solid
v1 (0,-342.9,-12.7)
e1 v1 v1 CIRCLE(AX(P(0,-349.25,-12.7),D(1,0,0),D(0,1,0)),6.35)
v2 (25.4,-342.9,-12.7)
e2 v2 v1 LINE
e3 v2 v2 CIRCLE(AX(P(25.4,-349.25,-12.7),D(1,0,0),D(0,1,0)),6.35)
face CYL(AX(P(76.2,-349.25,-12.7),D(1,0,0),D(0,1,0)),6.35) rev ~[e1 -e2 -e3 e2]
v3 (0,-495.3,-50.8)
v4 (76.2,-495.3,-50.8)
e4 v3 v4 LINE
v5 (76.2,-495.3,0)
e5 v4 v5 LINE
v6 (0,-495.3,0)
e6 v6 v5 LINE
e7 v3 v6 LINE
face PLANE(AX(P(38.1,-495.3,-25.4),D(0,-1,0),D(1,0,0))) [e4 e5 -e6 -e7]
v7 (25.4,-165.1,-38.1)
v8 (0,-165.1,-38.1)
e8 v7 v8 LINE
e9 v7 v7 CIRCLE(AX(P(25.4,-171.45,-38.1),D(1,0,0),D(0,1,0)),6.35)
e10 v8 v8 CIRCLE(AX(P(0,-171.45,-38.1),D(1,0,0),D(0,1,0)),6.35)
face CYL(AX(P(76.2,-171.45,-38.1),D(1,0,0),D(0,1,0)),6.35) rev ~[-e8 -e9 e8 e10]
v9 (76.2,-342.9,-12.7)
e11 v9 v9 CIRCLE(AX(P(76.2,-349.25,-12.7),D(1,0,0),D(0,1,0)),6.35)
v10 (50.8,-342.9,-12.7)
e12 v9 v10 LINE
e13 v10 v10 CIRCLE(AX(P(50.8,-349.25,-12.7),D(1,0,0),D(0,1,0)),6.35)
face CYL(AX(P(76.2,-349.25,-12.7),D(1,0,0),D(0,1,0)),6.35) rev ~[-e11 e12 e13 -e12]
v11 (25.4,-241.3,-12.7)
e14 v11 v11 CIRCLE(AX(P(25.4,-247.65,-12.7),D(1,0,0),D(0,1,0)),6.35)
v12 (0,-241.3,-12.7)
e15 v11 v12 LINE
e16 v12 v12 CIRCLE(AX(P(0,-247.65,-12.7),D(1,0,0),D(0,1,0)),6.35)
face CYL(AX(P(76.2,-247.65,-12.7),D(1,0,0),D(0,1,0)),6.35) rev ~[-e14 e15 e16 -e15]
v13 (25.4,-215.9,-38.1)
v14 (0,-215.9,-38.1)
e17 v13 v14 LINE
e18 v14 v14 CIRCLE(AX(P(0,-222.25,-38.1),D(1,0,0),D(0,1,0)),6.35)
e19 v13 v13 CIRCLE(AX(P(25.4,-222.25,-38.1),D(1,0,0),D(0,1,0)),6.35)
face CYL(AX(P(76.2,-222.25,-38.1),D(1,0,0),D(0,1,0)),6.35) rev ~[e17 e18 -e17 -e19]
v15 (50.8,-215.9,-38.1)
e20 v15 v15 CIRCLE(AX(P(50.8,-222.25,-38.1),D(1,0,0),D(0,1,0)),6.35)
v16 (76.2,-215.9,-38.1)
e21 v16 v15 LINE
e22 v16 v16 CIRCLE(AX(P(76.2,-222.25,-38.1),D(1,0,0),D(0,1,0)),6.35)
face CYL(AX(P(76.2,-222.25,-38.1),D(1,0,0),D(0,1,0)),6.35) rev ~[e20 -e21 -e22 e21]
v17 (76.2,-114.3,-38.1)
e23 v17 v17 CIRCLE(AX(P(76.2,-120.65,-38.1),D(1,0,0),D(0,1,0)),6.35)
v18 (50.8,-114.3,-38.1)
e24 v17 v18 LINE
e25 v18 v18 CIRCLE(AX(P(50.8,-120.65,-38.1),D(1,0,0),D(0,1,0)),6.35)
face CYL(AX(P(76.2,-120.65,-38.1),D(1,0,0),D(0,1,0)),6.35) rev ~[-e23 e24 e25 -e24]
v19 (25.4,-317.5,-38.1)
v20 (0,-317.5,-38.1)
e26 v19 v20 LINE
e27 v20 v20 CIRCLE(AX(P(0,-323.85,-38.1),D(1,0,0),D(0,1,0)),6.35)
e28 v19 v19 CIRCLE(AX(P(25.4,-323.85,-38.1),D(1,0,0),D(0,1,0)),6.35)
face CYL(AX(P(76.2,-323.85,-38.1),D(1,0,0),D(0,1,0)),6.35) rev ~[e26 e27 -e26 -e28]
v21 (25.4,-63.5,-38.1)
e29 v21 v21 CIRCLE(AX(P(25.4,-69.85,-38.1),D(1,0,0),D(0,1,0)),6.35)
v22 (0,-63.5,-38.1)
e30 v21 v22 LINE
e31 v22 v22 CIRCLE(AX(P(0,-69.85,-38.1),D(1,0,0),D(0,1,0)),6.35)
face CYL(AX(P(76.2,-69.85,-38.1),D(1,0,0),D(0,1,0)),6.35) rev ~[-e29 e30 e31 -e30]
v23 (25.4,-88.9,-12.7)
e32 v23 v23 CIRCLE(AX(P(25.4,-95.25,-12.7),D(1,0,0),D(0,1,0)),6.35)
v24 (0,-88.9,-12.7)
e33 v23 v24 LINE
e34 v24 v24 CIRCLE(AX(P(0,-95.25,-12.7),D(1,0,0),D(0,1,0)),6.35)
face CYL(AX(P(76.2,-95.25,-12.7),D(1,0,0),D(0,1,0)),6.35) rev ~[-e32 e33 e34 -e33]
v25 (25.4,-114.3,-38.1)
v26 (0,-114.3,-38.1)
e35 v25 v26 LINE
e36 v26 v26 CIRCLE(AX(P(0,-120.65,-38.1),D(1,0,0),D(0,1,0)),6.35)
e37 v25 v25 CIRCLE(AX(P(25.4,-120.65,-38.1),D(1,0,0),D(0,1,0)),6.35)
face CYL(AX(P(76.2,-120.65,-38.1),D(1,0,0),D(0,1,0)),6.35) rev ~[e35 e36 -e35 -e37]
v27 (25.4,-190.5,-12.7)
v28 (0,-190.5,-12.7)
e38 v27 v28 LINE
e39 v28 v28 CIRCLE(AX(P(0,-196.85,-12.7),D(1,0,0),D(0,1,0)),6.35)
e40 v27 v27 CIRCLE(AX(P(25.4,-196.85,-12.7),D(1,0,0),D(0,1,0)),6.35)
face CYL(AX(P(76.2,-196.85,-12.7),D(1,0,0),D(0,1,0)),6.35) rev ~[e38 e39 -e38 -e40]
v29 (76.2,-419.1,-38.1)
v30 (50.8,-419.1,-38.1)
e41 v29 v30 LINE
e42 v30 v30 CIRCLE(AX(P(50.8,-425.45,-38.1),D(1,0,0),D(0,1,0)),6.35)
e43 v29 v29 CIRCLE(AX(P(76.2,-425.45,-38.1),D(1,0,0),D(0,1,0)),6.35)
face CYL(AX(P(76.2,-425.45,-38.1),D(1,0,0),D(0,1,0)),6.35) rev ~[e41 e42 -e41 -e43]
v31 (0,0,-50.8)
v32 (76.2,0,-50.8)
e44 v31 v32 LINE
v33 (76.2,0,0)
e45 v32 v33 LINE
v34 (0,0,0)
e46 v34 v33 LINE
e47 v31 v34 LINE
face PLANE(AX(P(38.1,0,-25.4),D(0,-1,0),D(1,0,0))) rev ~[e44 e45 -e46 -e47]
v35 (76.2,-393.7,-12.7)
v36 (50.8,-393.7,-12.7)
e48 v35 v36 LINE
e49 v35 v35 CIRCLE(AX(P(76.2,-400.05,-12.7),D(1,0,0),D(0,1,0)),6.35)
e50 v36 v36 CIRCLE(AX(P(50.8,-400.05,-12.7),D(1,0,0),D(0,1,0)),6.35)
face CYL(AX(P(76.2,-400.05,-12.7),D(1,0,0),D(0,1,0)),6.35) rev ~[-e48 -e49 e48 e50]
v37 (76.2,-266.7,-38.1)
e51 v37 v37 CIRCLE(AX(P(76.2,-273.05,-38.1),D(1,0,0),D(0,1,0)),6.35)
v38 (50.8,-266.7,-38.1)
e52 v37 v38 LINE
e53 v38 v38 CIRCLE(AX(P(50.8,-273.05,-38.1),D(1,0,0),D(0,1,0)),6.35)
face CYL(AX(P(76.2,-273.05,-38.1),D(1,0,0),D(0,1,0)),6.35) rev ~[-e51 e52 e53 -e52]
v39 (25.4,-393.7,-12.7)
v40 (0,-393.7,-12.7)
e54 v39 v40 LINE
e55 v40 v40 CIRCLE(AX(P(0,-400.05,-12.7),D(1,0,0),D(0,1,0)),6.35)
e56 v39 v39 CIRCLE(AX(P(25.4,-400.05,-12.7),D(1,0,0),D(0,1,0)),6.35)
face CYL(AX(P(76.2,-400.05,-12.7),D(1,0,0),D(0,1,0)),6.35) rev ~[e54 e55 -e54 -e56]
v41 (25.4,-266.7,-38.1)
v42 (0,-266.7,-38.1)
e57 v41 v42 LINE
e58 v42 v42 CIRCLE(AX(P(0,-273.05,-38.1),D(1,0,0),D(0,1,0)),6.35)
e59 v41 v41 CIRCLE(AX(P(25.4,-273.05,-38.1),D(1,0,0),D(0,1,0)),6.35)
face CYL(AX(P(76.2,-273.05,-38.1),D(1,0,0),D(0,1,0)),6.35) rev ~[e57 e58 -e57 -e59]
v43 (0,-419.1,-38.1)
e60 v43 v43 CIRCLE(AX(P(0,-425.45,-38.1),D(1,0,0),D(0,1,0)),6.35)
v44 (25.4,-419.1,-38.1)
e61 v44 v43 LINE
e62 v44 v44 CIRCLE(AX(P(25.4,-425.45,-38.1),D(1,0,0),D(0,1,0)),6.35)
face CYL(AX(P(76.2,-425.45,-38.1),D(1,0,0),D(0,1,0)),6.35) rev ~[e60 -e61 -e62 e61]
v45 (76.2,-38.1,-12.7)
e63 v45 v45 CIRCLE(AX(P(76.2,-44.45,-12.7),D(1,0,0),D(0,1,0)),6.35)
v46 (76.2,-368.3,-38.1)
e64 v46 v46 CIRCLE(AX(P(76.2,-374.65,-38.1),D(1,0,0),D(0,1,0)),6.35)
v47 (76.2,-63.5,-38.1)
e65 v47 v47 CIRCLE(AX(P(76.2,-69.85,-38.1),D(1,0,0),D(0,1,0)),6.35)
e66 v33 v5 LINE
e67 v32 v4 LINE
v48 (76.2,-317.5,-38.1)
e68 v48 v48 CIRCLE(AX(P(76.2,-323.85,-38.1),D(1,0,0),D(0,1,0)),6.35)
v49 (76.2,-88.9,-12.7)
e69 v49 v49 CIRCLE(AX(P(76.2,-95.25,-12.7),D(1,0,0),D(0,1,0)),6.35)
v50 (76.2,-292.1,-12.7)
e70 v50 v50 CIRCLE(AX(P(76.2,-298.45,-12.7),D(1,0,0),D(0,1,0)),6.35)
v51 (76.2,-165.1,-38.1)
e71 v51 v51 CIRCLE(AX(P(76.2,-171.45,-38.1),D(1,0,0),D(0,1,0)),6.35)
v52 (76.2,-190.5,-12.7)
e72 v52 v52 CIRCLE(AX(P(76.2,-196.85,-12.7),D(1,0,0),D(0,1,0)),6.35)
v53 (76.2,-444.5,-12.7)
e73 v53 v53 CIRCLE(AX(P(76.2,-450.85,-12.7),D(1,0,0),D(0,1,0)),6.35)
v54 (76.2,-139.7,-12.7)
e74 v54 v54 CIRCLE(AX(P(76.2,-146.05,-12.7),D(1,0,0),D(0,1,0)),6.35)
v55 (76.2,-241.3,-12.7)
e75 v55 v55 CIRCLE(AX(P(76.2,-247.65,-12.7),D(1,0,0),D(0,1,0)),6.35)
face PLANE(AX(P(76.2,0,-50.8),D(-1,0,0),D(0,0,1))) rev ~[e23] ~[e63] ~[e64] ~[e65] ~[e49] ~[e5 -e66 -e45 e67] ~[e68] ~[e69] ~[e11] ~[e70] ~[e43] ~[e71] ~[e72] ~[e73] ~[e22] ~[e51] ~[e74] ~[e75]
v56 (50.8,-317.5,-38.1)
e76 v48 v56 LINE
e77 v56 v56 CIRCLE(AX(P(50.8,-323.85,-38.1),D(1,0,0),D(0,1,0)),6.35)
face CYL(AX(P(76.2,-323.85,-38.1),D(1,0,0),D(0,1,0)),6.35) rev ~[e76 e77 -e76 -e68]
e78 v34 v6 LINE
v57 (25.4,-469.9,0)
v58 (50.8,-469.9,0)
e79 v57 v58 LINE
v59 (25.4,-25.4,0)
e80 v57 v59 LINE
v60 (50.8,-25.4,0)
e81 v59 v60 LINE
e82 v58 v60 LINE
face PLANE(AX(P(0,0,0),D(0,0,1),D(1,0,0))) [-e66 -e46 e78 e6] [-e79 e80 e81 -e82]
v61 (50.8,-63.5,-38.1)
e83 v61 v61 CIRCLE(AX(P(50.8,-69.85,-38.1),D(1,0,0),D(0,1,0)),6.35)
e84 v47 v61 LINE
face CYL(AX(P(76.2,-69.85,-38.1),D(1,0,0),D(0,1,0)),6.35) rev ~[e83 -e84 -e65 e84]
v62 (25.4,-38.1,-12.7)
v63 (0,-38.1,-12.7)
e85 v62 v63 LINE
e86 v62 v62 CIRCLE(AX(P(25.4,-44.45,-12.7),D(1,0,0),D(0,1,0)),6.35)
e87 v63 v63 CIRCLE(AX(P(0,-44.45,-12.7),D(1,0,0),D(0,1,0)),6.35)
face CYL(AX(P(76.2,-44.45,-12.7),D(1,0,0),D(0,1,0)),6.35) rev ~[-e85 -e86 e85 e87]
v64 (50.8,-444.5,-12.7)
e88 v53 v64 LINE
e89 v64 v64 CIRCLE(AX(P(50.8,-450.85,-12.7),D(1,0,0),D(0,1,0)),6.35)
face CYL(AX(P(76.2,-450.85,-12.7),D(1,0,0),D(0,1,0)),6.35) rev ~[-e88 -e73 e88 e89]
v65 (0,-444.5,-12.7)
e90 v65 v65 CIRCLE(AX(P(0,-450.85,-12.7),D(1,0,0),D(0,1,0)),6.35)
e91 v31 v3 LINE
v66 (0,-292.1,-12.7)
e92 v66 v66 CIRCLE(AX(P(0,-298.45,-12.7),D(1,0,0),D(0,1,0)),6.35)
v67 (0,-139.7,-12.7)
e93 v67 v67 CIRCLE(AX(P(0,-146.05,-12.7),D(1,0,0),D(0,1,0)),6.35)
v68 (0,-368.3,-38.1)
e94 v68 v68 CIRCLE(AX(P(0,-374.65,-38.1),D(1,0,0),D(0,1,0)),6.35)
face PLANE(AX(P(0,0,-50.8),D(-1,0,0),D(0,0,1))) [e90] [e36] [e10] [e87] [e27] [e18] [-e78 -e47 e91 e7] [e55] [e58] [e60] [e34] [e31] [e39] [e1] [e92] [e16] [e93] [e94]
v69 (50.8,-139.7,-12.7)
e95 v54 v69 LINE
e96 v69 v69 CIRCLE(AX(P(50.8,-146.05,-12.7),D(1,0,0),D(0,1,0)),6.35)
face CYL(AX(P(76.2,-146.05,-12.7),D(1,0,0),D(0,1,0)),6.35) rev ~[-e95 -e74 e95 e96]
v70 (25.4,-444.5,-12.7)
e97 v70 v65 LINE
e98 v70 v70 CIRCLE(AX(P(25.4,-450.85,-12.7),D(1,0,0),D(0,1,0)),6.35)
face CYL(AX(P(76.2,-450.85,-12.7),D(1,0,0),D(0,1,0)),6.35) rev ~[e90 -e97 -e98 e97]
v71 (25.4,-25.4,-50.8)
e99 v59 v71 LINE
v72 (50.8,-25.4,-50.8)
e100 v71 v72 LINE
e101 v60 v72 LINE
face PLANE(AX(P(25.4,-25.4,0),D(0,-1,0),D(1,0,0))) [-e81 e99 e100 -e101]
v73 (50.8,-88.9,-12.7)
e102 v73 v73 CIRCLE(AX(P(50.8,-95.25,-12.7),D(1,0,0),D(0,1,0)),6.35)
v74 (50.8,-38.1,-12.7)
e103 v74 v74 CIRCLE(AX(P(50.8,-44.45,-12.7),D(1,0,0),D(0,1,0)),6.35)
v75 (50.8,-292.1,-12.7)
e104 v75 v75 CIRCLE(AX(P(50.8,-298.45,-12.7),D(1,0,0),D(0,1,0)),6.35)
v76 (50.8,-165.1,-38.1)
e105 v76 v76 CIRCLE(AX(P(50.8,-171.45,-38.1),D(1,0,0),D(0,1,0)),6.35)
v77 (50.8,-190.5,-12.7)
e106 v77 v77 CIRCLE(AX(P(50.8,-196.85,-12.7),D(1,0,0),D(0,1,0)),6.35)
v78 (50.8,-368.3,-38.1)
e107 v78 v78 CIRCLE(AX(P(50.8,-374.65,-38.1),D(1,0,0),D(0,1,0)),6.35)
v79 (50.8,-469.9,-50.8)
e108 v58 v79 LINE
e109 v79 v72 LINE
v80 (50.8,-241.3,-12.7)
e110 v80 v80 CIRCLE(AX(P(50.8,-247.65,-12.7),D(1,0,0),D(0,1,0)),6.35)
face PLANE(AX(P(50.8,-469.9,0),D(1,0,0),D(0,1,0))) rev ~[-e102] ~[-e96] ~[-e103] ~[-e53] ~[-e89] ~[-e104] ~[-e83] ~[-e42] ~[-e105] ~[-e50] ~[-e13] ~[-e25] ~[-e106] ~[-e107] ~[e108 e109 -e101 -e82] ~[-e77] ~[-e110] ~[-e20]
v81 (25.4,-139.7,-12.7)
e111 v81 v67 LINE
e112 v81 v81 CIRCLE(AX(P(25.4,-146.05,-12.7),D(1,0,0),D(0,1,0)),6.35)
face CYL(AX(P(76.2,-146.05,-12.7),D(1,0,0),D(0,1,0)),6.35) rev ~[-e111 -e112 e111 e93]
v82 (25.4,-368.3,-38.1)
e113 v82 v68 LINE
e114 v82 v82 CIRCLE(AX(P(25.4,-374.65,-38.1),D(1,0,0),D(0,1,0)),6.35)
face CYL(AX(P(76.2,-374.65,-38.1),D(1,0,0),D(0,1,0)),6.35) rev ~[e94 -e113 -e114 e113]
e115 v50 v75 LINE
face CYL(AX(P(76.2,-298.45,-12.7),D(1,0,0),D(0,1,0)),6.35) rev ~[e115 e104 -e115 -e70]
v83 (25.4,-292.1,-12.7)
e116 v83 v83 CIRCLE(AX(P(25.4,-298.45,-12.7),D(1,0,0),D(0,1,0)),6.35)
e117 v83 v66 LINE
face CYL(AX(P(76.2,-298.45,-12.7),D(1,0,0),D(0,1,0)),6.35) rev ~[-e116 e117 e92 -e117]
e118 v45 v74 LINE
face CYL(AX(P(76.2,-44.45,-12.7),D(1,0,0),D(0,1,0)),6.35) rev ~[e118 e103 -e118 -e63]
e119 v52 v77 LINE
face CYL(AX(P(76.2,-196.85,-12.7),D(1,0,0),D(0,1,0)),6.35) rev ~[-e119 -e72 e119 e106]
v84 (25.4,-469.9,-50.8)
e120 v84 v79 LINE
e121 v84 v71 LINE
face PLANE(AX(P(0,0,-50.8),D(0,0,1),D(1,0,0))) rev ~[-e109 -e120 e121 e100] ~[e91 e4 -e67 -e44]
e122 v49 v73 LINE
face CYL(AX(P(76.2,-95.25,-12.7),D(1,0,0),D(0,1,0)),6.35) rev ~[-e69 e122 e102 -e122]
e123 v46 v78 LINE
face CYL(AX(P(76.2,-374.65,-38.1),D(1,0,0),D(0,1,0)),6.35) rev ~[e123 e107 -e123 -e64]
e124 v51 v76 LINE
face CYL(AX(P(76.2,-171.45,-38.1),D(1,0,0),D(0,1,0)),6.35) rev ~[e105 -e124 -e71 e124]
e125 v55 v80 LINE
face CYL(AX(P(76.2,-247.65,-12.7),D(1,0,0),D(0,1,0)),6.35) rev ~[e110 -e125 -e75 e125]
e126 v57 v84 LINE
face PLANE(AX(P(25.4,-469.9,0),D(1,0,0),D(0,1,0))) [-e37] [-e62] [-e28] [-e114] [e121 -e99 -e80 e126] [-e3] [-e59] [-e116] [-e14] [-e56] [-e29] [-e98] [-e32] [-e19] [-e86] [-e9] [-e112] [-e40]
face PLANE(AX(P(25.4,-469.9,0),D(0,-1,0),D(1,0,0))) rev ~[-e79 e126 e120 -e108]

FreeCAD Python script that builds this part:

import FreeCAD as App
import Part
import Sketcher
from FreeCAD import Vector
Q = App.Units.Quantity

doc = App.newDocument("Part")
body = doc.addObject("PartDesign::Body", "Body")

sketch1 = body.newObject("Sketcher::SketchObject", "Sketch")
sketch1.AttachmentSupport = (doc.getObject("XZ_Plane"), [""])
sketch1.MapMode = "FlatFace"
sketch1.addGeometry([
    Part.LineSegment(Vector(0, 0, 0), Vector(0, -51, 0)),
    Part.LineSegment(Vector(0, -51, 0), Vector(76, -51, 0)),
    Part.LineSegment(Vector(76, -51, 0), Vector(76, 0, 0)),
    Part.LineSegment(Vector(76, 0, 0), Vector(0, 0, 0)),
], False)
sketch1.addConstraint([
    Sketcher.Constraint("Coincident", 0, 2, 1, 1),
    Sketcher.Constraint("Coincident", 1, 2, 2, 1),
    Sketcher.Constraint("Coincident", 2, 2, 3, 1),
    Sketcher.Constraint("Coincident", 3, 2, 0, 1),
    Sketcher.Constraint("Vertical", 0),
    Sketcher.Constraint("Horizontal", 1),
    Sketcher.Constraint("Vertical", 2),
    Sketcher.Constraint("Horizontal", 3),
    Sketcher.Constraint("Coincident", 3, 2, -1, 1),
    Sketcher.Constraint("DistanceX", 1, 1, 1, 2, Q("3 in")),
    Sketcher.Constraint("DistanceY", 0, 2, 0, 1, Q("2 in")),
])
pad1 = body.newObject("PartDesign::Pad", "Pad")
pad1.Profile = sketch1
pad1.Length = Q("19.5 in")

sketch2 = body.newObject("Sketcher::SketchObject", "Sketch001")
sketch2.AttachmentSupport = (doc.getObject("XY_Plane"), [""])
sketch2.MapMode = "FlatFace"
sketch2.addGeometry([
    Part.LineSegment(Vector(25, -25, 0), Vector(25, -470, 0)),
    Part.LineSegment(Vector(25, -470, 0), Vector(51, -470, 0)),
    Part.LineSegment(Vector(51, -470, 0), Vector(51, -25, 0)),
    Part.LineSegment(Vector(51, -25, 0), Vector(25, -25, 0)),
], False)
sketch2.addConstraint([
    Sketcher.Constraint("Coincident", 0, 2, 1, 1),
    Sketcher.Constraint("Coincident", 1, 2, 2, 1),
    Sketcher.Constraint("Coincident", 2, 2, 3, 1),
    Sketcher.Constraint("Coincident", 3, 2, 0, 1),
    Sketcher.Constraint("Vertical", 0),
    Sketcher.Constraint("Horizontal", 1),
    Sketcher.Constraint("Vertical", 2),
    Sketcher.Constraint("Horizontal", 3),
    Sketcher.Constraint("DistanceX", 1, 1, 1, 2, Q("1 in")),
    Sketcher.Constraint("DistanceY", 0, 2, 0, 1, Q("17.5 in")),
    Sketcher.Constraint("DistanceX", -1, 1, 0, 2, Q("1 in")),
    Sketcher.Constraint("DistanceY", 2, 2, -1, 1, Q("1 in")),
])
pocket1 = body.newObject("PartDesign::Pocket", "Pocket")
pocket1.Profile = sketch2
pocket1.Length = Q("2 in")

sketch3 = body.newObject("Sketcher::SketchObject", "Sketch002")
sketch3.AttachmentSupport = (doc.getObject("YZ_Plane"), [""])
sketch3.MapMode = "FlatFace"
sketch3.AttachmentOffset = App.Placement(Vector(0, 0, 3 * 25.4), App.Rotation())
sketch3.addGeometry([
    Part.Circle(Vector(-451, -13, 0), Vector(0, 0, 1), 6),
    Part.Circle(Vector(-400, -13, 0), Vector(0, 0, 1), 6),
    Part.Circle(Vector(-349, -13, 0), Vector(0, 0, 1), 6),
    Part.Circle(Vector(-298, -13, 0), Vector(0, 0, 1), 6),
    Part.Circle(Vector(-248, -13, 0), Vector(0, 0, 1), 6),
    Part.Circle(Vector(-197, -13, 0), Vector(0, 0, 1), 6),
    Part.Circle(Vector(-146, -13, 0), Vector(0, 0, 1), 6),
    Part.Circle(Vector(-95, -13, 0), Vector(0, 0, 1), 6),
    Part.Circle(Vector(-44, -13, 0), Vector(0, 0, 1), 6),
    Part.Circle(Vector(-70, -38, 0), Vector(0, 0, 1), 6),
    Part.Circle(Vector(-121, -38, 0), Vector(0, 0, 1), 6),
    Part.Circle(Vector(-171, -38, 0), Vector(0, 0, 1), 6),
    Part.Circle(Vector(-222, -38, 0), Vector(0, 0, 1), 6),
    Part.Circle(Vector(-273, -38, 0), Vector(0, 0, 1), 6),
    Part.Circle(Vector(-324, -38, 0), Vector(0, 0, 1), 6),
    Part.Circle(Vector(-375, -38, 0), Vector(0, 0, 1), 6),
    Part.Circle(Vector(-425, -38, 0), Vector(0, 0, 1), 6),
], False)
sketch3.addConstraint([
    Sketcher.Constraint("Equal", 0, 1),
    Sketcher.Constraint("Equal", 1, 2),
    Sketcher.Constraint("Equal", 2, 3),
    Sketcher.Constraint("Equal", 3, 4),
    Sketcher.Constraint("Equal", 4, 5),
    Sketcher.Constraint("Equal", 5, 6),
    Sketcher.Constraint("Equal", 6, 7),
    Sketcher.Constraint("Equal", 7, 8),
    Sketcher.Constraint("Equal", 8, 9),
    Sketcher.Constraint("Equal", 9, 10),
    Sketcher.Constraint("Equal", 10, 11),
    Sketcher.Constraint("Equal", 11, 12),
    Sketcher.Constraint("Equal", 12, 13),
    Sketcher.Constraint("Equal", 13, 14),
    Sketcher.Constraint("Equal", 14, 15),
    Sketcher.Constraint("Equal", 15, 16),
    Sketcher.Constraint("Horizontal", 0, 3, 1, 3),
    Sketcher.Constraint("Horizontal", 1, 3, 2, 3),
    Sketcher.Constraint("Horizontal", 2, 3, 3, 3),
    Sketcher.Constraint("Horizontal", 3, 3, 4, 3),
    Sketcher.Constraint("Horizontal", 4, 3, 5, 3),
    Sketcher.Constraint("Horizontal", 5, 3, 6, 3),
    Sketcher.Constraint("Horizontal", 6, 3, 7, 3),
    Sketcher.Constraint("Horizontal", 7, 3, 8, 3),
    Sketcher.Constraint("Horizontal", 9, 3, 10, 3),
    Sketcher.Constraint("Horizontal", 10, 3, 11, 3),
    Sketcher.Constraint("Horizontal", 11, 3, 12, 3),
    Sketcher.Constraint("Horizontal", 12, 3, 13, 3),
    Sketcher.Constraint("Horizontal", 13, 3, 14, 3),
    Sketcher.Constraint("Horizontal", 14, 3, 15, 3),
    Sketcher.Constraint("Horizontal", 15, 3, 16, 3),
    Sketcher.Constraint("Diameter", 0, Q("0.5 in")),
    Sketcher.Constraint("DistanceX", 0, 3, 1, 3, Q("2 in")),
    Sketcher.Constraint("DistanceX", 1, 3, 2, 3, Q("2 in")),
    Sketcher.Constraint("DistanceX", 2, 3, 3, 3, Q("2 in")),
    Sketcher.Constraint("DistanceX", 3, 3, 4, 3, Q("2 in")),
    Sketcher.Constraint("DistanceX", 4, 3, 5, 3, Q("2 in")),
    Sketcher.Constraint("DistanceX", 5, 3, 6, 3, Q("2 in")),
    Sketcher.Constraint("DistanceX", 6, 3, 7, 3, Q("2 in")),
    Sketcher.Constraint("DistanceX", 7, 3, 8, 3, Q("2 in")),
    Sketcher.Constraint("DistanceX", 9, 3, 8, 3, Q("1 in")),
    Sketcher.Constraint("DistanceY", 9, 3, 8, 3, Q("1 in")),
    Sketcher.Constraint("DistanceX", 6, 3, 10, 3, Q("1 in")),
    Sketcher.Constraint("DistanceX", 11, 3, 6, 3, Q("1 in")),
    Sketcher.Constraint("DistanceX", 4, 3, 12, 3, Q("1 in")),
    Sketcher.Constraint("DistanceX", 3, 3, 13, 3, Q("1 in")),
    Sketcher.Constraint("DistanceX", 2, 3, 14, 3, Q("1 in")),
    Sketcher.Constraint("DistanceX", 15, 3, 2, 3, Q("1 in")),
    Sketcher.Constraint("DistanceX", 16, 3, 1, 3, Q("1 in")),
    Sketcher.Constraint("DistanceY", 0, 3, -1, 1, Q("0.5 in")),
    Sketcher.Constraint("DistanceX", 0, 3, -1, 1, Q("17.75 in")),
])
pocket2 = body.newObject("PartDesign::Pocket", "Pocket001")
pocket2.Profile = sketch3
pocket2.Length = Q("3 in")

doc.recompute()
